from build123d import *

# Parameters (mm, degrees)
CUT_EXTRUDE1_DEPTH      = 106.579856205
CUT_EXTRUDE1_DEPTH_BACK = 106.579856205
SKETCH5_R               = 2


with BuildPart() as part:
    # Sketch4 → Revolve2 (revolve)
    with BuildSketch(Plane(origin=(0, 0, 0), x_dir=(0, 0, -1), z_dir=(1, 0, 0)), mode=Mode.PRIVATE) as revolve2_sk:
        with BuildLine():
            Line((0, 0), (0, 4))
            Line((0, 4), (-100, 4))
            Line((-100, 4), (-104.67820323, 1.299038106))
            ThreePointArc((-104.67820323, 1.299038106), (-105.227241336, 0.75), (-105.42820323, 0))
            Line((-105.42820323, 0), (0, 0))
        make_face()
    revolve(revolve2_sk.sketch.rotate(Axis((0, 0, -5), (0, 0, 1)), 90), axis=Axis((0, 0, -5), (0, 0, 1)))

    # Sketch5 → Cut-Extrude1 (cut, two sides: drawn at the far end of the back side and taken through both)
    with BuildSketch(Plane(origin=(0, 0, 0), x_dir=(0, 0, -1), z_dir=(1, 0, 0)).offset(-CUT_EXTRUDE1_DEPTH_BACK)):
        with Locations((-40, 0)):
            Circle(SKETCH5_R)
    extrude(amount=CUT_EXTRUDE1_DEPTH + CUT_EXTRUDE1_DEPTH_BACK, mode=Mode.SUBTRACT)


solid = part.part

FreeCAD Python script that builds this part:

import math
import FreeCAD as App
import Part
import Sketcher
Q = App.Units.Quantity

doc = App.newDocument("Part")
body = doc.addObject("PartDesign::Body", "Body")

sketch1 = body.newObject("Sketcher::SketchObject", "Sketch")
sketch1.AttachmentSupport = (doc.getObject("YZ_Plane"), [""])
sketch1.MapMode = "FlatFace"
sketch1.addGeometry([
    Part.LineSegment(App.Vector(0, 0, 0), App.Vector(4, 0, 0)),
    Part.LineSegment(App.Vector(4, 0, 0), App.Vector(4, 100, 0)),
    Part.LineSegment(App.Vector(4, 100, 0), App.Vector(1.3, 104.7, 0)),
    Part.ArcOfCircle(Part.Circle(App.Vector(0, 103.9, 0), App.Vector(0, 0, 1), 1.5), math.radians(30), math.radians(90)),
    Part.LineSegment(App.Vector(0, 105.4, 0), App.Vector(0, 0, 0)),
], False)
sketch1.addConstraint([
    Sketcher.Constraint("Coincident", 0, 2, 1, 1),
    Sketcher.Constraint("Coincident", 1, 2, 2, 1),
    Sketcher.Constraint("Tangent", 2, 2, 3, 1),
    Sketcher.Constraint("Coincident", 3, 2, 4, 1),
    Sketcher.Constraint("Coincident", 4, 2, 0, 1),
    Sketcher.Constraint("Horizontal", 0),
    Sketcher.Constraint("Vertical", 1),
    Sketcher.Constraint("Vertical", 4),
    Sketcher.Constraint("Coincident", 4, 2, -1, 1),
    Sketcher.Constraint("PointOnObject", 3, 3, -2),
    Sketcher.Constraint("Radius", 3, Q("1.5 mm")),
    Sketcher.Constraint("DistanceX", 0, 1, 0, 2, Q("4 mm")),
    Sketcher.Constraint("DistanceY", 1, 1, 1, 2, Q("100 mm")),
    Sketcher.Constraint("Angle", 2, Q("120 deg")),
])
revolution = body.newObject("PartDesign::Revolution", "Revolution")
revolution.Profile = sketch1
revolution.ReferenceAxis = (sketch1, ["V_Axis"])
revolution.Angle = 360

sketch2 = body.newObject("Sketcher::SketchObject", "Sketch001")
sketch2.AttachmentSupport = (doc.getObject("YZ_Plane"), [""])
sketch2.MapMode = "FlatFace"
sketch2.addGeometry(Part.Circle(App.Vector(0, 40, 0), App.Vector(0, 0, 1), 2), False)
sketch2.addConstraint([
    Sketcher.Constraint("PointOnObject", 0, 3, -2),
    Sketcher.Constraint("Diameter", 0, Q("4 mm")),
    Sketcher.Constraint("DistanceY", -1, 1, 0, 3, Q("40 mm")),
])
pocket1 = body.newObject("PartDesign::Pocket", "Pocket")
pocket1.Profile = sketch2
pocket1.Type = "ThroughAll"
pocket1.Midplane = True

doc.recompute()
